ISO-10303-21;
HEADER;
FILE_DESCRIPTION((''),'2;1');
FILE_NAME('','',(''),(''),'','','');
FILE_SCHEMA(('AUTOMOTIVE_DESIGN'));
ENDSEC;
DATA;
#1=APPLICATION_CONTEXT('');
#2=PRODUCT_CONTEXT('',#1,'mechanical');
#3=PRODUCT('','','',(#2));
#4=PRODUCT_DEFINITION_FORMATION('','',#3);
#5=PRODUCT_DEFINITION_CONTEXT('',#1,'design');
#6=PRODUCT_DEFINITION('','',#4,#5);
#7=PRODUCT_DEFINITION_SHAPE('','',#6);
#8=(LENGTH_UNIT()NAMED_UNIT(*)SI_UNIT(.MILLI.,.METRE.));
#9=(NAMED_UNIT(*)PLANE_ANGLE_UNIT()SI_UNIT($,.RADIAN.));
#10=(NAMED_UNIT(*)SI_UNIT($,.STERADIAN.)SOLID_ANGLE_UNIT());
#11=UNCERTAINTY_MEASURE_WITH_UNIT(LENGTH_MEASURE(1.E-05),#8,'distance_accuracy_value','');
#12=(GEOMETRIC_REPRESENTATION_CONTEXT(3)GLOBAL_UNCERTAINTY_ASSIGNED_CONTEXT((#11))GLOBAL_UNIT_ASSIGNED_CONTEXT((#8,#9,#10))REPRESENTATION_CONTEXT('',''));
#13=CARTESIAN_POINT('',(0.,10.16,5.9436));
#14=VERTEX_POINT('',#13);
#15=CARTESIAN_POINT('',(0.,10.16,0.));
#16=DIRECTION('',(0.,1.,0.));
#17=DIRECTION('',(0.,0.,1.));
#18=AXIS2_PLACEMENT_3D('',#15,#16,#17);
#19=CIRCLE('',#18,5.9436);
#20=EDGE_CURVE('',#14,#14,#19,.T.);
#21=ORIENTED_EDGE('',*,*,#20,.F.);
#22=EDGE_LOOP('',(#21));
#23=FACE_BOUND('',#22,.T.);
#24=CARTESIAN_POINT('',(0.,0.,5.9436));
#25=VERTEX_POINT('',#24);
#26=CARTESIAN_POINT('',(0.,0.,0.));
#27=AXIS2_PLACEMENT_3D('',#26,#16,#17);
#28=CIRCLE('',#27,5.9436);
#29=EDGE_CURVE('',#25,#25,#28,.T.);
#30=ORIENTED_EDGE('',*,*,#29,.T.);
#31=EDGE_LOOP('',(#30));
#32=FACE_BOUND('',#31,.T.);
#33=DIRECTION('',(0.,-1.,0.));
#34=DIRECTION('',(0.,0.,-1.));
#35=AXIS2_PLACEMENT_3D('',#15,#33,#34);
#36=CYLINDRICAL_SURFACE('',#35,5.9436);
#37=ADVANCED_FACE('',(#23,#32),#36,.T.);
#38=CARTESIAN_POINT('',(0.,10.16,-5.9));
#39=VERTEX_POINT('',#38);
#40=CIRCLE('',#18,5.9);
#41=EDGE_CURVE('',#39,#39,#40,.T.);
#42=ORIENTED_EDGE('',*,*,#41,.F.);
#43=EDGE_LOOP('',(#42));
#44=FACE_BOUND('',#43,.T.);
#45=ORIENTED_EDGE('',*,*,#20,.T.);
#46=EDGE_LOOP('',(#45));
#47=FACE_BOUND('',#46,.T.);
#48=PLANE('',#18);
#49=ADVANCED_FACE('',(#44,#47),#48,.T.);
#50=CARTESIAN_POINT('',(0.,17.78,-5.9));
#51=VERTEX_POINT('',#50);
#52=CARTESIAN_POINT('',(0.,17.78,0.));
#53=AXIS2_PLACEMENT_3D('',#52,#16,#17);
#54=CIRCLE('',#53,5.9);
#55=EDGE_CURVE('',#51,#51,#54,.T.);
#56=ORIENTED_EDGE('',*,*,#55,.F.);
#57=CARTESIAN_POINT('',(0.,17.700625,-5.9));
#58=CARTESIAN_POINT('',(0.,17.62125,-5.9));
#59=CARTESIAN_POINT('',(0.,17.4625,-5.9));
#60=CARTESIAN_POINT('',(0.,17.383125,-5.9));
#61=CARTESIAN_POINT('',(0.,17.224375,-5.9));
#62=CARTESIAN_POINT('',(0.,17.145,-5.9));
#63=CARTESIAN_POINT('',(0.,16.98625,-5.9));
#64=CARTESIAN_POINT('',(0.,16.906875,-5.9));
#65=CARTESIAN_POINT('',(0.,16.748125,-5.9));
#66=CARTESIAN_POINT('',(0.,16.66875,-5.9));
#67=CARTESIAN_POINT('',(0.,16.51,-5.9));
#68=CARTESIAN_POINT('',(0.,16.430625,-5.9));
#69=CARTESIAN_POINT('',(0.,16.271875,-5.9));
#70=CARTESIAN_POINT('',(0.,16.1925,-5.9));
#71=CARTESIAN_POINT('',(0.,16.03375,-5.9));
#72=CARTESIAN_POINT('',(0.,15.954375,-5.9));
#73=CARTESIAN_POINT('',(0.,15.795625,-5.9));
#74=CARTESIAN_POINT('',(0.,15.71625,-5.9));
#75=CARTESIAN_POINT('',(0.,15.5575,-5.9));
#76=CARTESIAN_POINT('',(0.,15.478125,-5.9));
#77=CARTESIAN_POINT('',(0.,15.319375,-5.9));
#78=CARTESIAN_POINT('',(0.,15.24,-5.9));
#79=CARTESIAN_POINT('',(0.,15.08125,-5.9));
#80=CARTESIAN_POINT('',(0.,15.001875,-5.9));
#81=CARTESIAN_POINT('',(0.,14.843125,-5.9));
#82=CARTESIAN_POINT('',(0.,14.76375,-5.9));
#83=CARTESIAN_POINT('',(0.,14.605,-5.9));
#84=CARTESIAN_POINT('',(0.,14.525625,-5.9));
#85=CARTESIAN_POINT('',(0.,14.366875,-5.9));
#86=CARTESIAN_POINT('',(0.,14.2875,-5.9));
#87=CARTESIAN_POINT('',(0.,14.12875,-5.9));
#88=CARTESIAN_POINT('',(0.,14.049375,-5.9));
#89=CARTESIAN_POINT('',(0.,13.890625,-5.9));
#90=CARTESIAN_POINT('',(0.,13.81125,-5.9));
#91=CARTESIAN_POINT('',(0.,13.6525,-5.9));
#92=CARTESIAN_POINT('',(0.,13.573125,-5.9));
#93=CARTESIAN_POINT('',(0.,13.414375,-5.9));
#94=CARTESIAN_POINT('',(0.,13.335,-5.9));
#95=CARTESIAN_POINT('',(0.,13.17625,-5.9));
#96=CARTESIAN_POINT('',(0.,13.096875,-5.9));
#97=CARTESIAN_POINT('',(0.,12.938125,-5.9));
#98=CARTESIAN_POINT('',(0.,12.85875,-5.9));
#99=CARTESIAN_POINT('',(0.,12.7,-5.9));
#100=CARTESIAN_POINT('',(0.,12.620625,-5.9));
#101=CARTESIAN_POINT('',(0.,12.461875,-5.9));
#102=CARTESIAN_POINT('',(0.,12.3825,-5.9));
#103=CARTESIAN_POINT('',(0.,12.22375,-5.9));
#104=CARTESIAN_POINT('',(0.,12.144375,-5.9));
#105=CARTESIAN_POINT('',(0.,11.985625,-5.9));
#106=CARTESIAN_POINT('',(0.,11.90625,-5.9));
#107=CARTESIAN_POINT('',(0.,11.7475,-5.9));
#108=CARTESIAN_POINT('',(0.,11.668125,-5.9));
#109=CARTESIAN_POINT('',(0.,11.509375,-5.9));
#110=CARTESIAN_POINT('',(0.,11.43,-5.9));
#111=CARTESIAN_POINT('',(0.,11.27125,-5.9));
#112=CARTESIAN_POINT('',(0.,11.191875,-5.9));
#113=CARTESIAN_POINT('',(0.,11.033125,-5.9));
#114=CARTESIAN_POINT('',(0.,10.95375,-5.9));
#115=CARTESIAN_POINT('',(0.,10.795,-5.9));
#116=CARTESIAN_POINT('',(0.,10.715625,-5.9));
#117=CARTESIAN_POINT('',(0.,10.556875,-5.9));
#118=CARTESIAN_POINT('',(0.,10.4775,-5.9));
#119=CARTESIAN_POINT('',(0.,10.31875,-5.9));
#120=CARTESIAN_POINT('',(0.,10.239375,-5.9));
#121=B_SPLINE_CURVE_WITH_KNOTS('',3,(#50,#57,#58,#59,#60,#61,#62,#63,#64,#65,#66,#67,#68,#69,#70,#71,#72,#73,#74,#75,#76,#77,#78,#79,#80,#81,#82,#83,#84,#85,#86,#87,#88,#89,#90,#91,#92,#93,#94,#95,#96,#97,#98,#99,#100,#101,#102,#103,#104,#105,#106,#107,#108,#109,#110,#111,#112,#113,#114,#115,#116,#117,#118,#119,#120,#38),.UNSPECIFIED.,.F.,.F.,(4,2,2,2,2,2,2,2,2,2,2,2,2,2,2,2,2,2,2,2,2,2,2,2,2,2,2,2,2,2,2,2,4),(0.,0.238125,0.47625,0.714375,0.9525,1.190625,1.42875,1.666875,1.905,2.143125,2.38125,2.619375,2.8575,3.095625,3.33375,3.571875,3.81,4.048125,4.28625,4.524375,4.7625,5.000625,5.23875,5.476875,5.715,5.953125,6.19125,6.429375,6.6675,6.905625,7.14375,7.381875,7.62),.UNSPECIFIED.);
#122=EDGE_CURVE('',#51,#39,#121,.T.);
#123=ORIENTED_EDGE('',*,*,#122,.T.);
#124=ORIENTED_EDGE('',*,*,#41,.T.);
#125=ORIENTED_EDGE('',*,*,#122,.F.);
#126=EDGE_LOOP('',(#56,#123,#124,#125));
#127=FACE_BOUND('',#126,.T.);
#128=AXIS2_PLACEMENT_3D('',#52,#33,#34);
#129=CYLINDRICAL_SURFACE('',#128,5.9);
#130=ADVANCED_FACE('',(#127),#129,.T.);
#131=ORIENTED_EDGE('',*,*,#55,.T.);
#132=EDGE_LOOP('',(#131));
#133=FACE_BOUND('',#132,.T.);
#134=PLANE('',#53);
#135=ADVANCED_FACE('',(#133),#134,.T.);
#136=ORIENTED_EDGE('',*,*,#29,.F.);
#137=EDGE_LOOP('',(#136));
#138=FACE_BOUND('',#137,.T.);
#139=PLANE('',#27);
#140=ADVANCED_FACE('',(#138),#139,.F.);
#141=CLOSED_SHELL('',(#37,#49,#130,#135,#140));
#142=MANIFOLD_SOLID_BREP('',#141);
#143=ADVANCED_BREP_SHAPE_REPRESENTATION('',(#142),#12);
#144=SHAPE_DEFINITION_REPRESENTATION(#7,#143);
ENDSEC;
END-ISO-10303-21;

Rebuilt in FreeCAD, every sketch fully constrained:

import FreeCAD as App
import Part
import Sketcher
from FreeCAD import Vector
Q = App.Units.Quantity

doc = App.newDocument("Part")
body = doc.addObject("PartDesign::Body", "Body")

# Sketch on XZ plane
sketch1 = body.newObject("Sketcher::SketchObject", "Sketch")
sketch1.AttachmentSupport = (doc.getObject("XZ_Plane"), [""])
sketch1.MapMode = "FlatFace"
sketch1.addGeometry(Part.Circle(Vector(0, 0, 0), Vector(0, 0, 1), 6), False)
sketch1.addConstraint(Sketcher.Constraint("Coincident", 0, 3, -1, 1))
sketch1.addConstraint(Sketcher.Constraint("Diameter", 0, Q("0.468 in")))
pad1 = body.newObject("PartDesign::Pad", "Pad")
pad1.Profile = sketch1
pad1.Length = Q("0.4 in")
pad1.Reversed = True

# Sketch on XZ plane
sketch2 = body.newObject("Sketcher::SketchObject", "Sketch001")
sketch2.AttachmentSupport = (doc.getObject("XZ_Plane"), [""])
sketch2.MapMode = "FlatFace"
sketch2.AttachmentOffset = App.Placement(Vector(0, 0, -0.4 * 25.4), App.Rotation())
sketch2.addGeometry(Part.Circle(Vector(0, 0, 0), Vector(0, 0, 1), 6), False)
sketch2.addConstraint(Sketcher.Constraint("Coincident", 0, 3, -1, 1))
sketch2.addConstraint(Sketcher.Constraint("Diameter", 0, 11.8))
pad2 = body.newObject("PartDesign::Pad", "Pad001")
pad2.Profile = sketch2
pad2.Length = Q("0.3 in")
pad2.Reversed = True

doc.recompute()
